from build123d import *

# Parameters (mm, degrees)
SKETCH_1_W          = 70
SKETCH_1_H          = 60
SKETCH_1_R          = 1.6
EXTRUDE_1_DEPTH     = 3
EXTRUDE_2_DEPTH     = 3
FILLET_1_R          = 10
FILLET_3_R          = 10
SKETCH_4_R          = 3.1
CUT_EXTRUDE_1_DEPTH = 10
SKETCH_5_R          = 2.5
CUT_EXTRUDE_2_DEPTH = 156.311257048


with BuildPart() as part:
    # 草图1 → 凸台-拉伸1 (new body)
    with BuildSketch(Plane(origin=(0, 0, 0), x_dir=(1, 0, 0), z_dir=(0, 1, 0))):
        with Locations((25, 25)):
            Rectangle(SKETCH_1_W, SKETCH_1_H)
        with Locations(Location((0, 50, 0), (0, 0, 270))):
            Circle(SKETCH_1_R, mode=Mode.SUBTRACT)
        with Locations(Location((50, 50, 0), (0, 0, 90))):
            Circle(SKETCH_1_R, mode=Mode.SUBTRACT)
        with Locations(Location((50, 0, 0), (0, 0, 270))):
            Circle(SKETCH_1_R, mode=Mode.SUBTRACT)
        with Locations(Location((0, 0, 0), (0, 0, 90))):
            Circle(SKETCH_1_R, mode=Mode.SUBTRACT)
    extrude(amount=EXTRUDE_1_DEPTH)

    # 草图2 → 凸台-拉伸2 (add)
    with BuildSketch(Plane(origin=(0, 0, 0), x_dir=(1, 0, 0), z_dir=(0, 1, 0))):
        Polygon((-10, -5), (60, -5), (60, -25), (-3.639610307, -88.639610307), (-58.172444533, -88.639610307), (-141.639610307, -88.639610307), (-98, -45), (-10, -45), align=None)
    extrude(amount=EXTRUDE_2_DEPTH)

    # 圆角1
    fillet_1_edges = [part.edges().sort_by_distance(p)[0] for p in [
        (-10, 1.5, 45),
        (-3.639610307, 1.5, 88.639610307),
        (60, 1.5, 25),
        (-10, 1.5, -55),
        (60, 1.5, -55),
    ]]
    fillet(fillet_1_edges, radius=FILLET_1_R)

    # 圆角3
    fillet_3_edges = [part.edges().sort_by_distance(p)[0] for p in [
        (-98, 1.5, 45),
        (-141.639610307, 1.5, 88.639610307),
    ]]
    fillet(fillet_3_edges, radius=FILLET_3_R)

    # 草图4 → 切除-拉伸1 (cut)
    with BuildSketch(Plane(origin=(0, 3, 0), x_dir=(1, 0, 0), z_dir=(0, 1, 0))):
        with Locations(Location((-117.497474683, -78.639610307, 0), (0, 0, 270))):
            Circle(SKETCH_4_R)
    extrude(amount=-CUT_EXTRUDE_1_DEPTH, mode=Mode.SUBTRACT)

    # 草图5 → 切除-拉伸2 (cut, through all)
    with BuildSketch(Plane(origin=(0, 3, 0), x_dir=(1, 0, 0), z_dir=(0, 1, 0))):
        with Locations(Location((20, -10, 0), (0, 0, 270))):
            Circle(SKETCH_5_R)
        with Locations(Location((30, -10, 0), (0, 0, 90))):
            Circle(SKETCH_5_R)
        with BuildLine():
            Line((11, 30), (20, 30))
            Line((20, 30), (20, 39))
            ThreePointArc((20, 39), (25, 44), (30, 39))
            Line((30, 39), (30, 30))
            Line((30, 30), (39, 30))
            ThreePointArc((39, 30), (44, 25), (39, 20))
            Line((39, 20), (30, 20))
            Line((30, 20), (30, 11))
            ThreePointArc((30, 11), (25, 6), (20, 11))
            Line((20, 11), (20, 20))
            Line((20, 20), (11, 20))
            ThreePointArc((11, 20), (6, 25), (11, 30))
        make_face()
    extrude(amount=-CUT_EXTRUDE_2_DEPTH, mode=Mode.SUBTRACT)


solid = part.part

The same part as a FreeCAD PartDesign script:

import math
import FreeCAD as App
import Part
import Sketcher
from FreeCAD import Vector


def edges_at(feature, points):
    """Names of the edges that pass closest to the given points."""
    edges = feature.Shape.Edges
    near = lambda p: min(range(len(edges)), key=lambda i: edges[i].distToShape(Part.Vertex(*p))[0])
    return sorted({f"Edge{near(p) + 1}" for p in points})


def add_polygon(sketch, points):
    """Adds a closed chain of lines whose ends are joined by coincident constraints."""
    first, n = sketch.GeometryCount, len(points)
    for a, b in zip(points, points[1:] + points[:1]):
        sketch.addGeometry(Part.LineSegment(App.Vector(*a, 0), App.Vector(*b, 0)), False)
    for i in range(n):
        sketch.addConstraint(Sketcher.Constraint("Coincident", first + i, 2, first + (i + 1) % n, 1))

doc = App.newDocument("Part")
body = doc.addObject("PartDesign::Body", "Body")

sketch1 = body.newObject("Sketcher::SketchObject", "Sketch")
sketch1.AttachmentSupport = (doc.getObject("XZ_Plane"), [""])
sketch1.MapMode = "FlatFace"
add_polygon(sketch1, [(-10, -55), (-10, 5), (60, 5), (60, -55)])
sketch1.addGeometry(Part.Circle(Vector(0, 0, 0), Vector(0, 0, 1), 1.6), False)
sketch1.addGeometry(Part.Circle(Vector(50, 0, 0), Vector(0, 0, 1), 1.6), False)
sketch1.addGeometry(Part.Circle(Vector(0, -50, 0), Vector(0, 0, 1), 1.6), False)
sketch1.addGeometry(Part.Circle(Vector(50, -50, 0), Vector(0, 0, 1), 1.6), False)
sketch1.addConstraint([
    Sketcher.Constraint("Vertical", 0),
    Sketcher.Constraint("Horizontal", 1),
    Sketcher.Constraint("Vertical", 2),
    Sketcher.Constraint("Horizontal", 3),
    Sketcher.Constraint("Coincident", 4, 3, -1, 1),
    Sketcher.Constraint("Equal", 4, 5),
    Sketcher.Constraint("Equal", 5, 6),
    Sketcher.Constraint("Equal", 6, 7),
    Sketcher.Constraint("PointOnObject", 5, 3, -1),
    Sketcher.Constraint("PointOnObject", 6, 3, -2),
    Sketcher.Constraint("Horizontal", 6, 3, 7, 3),
    Sketcher.Constraint("Vertical", 5, 3, 7, 3),
    Sketcher.Constraint("Diameter", 4, 3.2),
    Sketcher.Constraint("DistanceX", 1, 1, 1, 2, 70.0),
    Sketcher.Constraint("DistanceY", 0, 1, 0, 2, 60.0),
    Sketcher.Constraint("DistanceX", -1, 1, 5, 3, 50.0),
    Sketcher.Constraint("DistanceY", 6, 3, -1, 1, 50.0),
    Sketcher.Constraint("DistanceX", 0, 2, -1, 1, 10.0),
    Sketcher.Constraint("DistanceY", -1, 1, 0, 2, 5.0),
])
pad1 = body.newObject("PartDesign::Pad", "Pad")
pad1.Profile = sketch1
pad1.Length = 3
pad1.Reversed = True

sketch2 = body.newObject("Sketcher::SketchObject", "Sketch001")
sketch2.AttachmentSupport = (doc.getObject("XZ_Plane"), [""])
sketch2.MapMode = "FlatFace"
add_polygon(sketch2, [(60, 5), (-10, 5), (-10, 45), (-98, 45), (-141.63961, 88.63961), (-3.63961, 88.63961), (60, 25)])
sketch2.addConstraint([
    Sketcher.Constraint("Horizontal", 0),
    Sketcher.Constraint("Vertical", 1),
    Sketcher.Constraint("Horizontal", 2),
    Sketcher.Constraint("Horizontal", 4),
    Sketcher.Constraint("Vertical", 6),
    Sketcher.Constraint("Parallel", 3, 5),
    Sketcher.Constraint("DistanceX", 0, 2, 0, 1, 70.0),
    Sketcher.Constraint("DistanceX", 2, 2, 2, 1, 88.0),
    Sketcher.Constraint("DistanceX", 4, 1, 4, 2, 138.0),
    Sketcher.Constraint("DistanceY", 1, 1, 1, 2, 40.0),
    Sketcher.Constraint("DistanceY", 6, 2, 6, 1, 20.0),
    Sketcher.Constraint("Distance", 5, 90.0),
    Sketcher.Constraint("DistanceX", 0, 2, -1, 1, 10.0),
    Sketcher.Constraint("DistanceY", -1, 1, 0, 2, 5.0),
])
pad2 = body.newObject("PartDesign::Pad", "Pad001")
pad2.Profile = sketch2
pad2.Length = 3
pad2.Reversed = True
doc.recompute()

fillet = body.newObject("PartDesign::Fillet", "Fillet")
fillet.Base = (pad2, edges_at(pad2, [
    (-10, 1.5, 45),
    (-3.64, 1.5, 88.64),
    (60, 1.5, 25),
    (-10, 1.5, -55),
    (60, 1.5, -55),
]))
fillet.Radius = 10
doc.recompute()

fillet2 = body.newObject("PartDesign::Fillet", "Fillet001")
fillet2.Base = (fillet, edges_at(fillet, [(-98, 1.5, 45), (-141.64, 1.5, 88.64)]))
fillet2.Radius = 10

sketch3 = body.newObject("Sketcher::SketchObject", "Sketch002")
sketch3.AttachmentSupport = (doc.getObject("XZ_Plane"), [""])
sketch3.MapMode = "FlatFace"
sketch3.AttachmentOffset = App.Placement(Vector(0, 0, -3), App.Rotation())
sketch3.addGeometry(Part.Circle(Vector(-117.497475, 78.63961, 0), Vector(0, 0, 1), 3.1), False)
sketch3.addConstraint([
    Sketcher.Constraint("Diameter", 0, 6.2),
    Sketcher.Constraint("DistanceY", -1, 1, 0, 3, 78.63961),
    Sketcher.Constraint("DistanceX", 0, 3, -1, 1, 117.497475),
])
pocket1 = body.newObject("PartDesign::Pocket", "Pocket")
pocket1.Profile = sketch3
pocket1.Length = 10
pocket1.Reversed = True

sketch4 = body.newObject("Sketcher::SketchObject", "Sketch003")
sketch4.AttachmentSupport = (doc.getObject("XZ_Plane"), [""])
sketch4.MapMode = "FlatFace"
sketch4.AttachmentOffset = App.Placement(Vector(0, 0, -3), App.Rotation())
sketch4.addGeometry([
    Part.Circle(Vector(20, 10, 0), Vector(0, 0, 1), 2.5),
    Part.Circle(Vector(30, 10, 0), Vector(0, 0, 1), 2.5),
    Part.LineSegment(Vector(20, -30, 0), Vector(11, -30, 0)),
    Part.ArcOfCircle(Part.Circle(Vector(11, -25, 0), Vector(0, 0, 1), 5), math.radians(90), math.radians(270)),
    Part.LineSegment(Vector(11, -20, 0), Vector(20, -20, 0)),
    Part.LineSegment(Vector(20, -20, 0), Vector(20, -11, 0)),
    Part.ArcOfCircle(Part.Circle(Vector(25, -11, 0), Vector(0, 0, 1), 5), math.radians(0), math.radians(180)),
    Part.LineSegment(Vector(30, -11, 0), Vector(30, -20, 0)),
    Part.LineSegment(Vector(30, -20, 0), Vector(39, -20, 0)),
    Part.ArcOfCircle(Part.Circle(Vector(39, -25, 0), Vector(0, 0, 1), 5), math.radians(-90), math.radians(90)),
    Part.LineSegment(Vector(39, -30, 0), Vector(30, -30, 0)),
    Part.LineSegment(Vector(30, -30, 0), Vector(30, -39, 0)),
    Part.ArcOfCircle(Part.Circle(Vector(25, -39, 0), Vector(0, 0, 1), 5), math.radians(180), math.radians(360)),
    Part.LineSegment(Vector(20, -39, 0), Vector(20, -30, 0)),
], False)
sketch4.addConstraint([
    Sketcher.Constraint("Tangent", 2, 2, 3, 2),
    Sketcher.Constraint("Tangent", 3, 1, 4, 1),
    Sketcher.Constraint("Coincident", 4, 2, 5, 1),
    Sketcher.Constraint("Tangent", 5, 2, 6, 2),
    Sketcher.Constraint("Tangent", 6, 1, 7, 1),
    Sketcher.Constraint("Coincident", 7, 2, 8, 1),
    Sketcher.Constraint("Tangent", 8, 2, 9, 2),
    Sketcher.Constraint("Tangent", 9, 1, 10, 1),
    Sketcher.Constraint("Coincident", 10, 2, 11, 1),
    Sketcher.Constraint("Tangent", 11, 2, 12, 2),
    Sketcher.Constraint("Tangent", 12, 1, 13, 1),
    Sketcher.Constraint("Coincident", 13, 2, 2, 1),
    Sketcher.Constraint("Horizontal", 2),
    Sketcher.Constraint("Horizontal", 4),
    Sketcher.Constraint("Vertical", 5),
    Sketcher.Constraint("Vertical", 7),
    Sketcher.Constraint("Horizontal", 8),
    Sketcher.Constraint("Horizontal", 10),
    Sketcher.Constraint("Vertical", 11),
    Sketcher.Constraint("Vertical", 13),
    Sketcher.Constraint("Equal", 0, 1),
    Sketcher.Constraint("Equal", 3, 6),
    Sketcher.Constraint("Equal", 6, 9),
    Sketcher.Constraint("Equal", 9, 12),
    Sketcher.Constraint("Horizontal", 0, 3, 1, 3),
    Sketcher.Constraint("Horizontal", 3, 3, 9, 3),
    Sketcher.Constraint("Vertical", 6, 3, 12, 3),
    Sketcher.Constraint("Vertical", 0, 3, 4, 2),
    Sketcher.Constraint("Vertical", 1, 3, 6, 1),
    Sketcher.Constraint("Equal", 4, 8),
    Sketcher.Constraint("Equal", 10, 5),
    Sketcher.Constraint("Equal", 7, 11),
    Sketcher.Constraint("Diameter", 0, 5.0),
    Sketcher.Constraint("Radius", 3, 5.0),
    Sketcher.Constraint("DistanceX", 2, 2, 2, 1, 9.0),
    Sketcher.Constraint("DistanceX", -1, 1, 0, 3, 20.0),
    Sketcher.Constraint("DistanceY", -1, 1, 0, 3, 10.0),
    Sketcher.Constraint("DistanceY", 3, 3, -1, 1, 25.0),
])
pocket2 = body.newObject("PartDesign::Pocket", "Pocket001")
pocket2.Profile = sketch4
pocket2.Type = "ThroughAll"
pocket2.Reversed = True

doc.recompute()
